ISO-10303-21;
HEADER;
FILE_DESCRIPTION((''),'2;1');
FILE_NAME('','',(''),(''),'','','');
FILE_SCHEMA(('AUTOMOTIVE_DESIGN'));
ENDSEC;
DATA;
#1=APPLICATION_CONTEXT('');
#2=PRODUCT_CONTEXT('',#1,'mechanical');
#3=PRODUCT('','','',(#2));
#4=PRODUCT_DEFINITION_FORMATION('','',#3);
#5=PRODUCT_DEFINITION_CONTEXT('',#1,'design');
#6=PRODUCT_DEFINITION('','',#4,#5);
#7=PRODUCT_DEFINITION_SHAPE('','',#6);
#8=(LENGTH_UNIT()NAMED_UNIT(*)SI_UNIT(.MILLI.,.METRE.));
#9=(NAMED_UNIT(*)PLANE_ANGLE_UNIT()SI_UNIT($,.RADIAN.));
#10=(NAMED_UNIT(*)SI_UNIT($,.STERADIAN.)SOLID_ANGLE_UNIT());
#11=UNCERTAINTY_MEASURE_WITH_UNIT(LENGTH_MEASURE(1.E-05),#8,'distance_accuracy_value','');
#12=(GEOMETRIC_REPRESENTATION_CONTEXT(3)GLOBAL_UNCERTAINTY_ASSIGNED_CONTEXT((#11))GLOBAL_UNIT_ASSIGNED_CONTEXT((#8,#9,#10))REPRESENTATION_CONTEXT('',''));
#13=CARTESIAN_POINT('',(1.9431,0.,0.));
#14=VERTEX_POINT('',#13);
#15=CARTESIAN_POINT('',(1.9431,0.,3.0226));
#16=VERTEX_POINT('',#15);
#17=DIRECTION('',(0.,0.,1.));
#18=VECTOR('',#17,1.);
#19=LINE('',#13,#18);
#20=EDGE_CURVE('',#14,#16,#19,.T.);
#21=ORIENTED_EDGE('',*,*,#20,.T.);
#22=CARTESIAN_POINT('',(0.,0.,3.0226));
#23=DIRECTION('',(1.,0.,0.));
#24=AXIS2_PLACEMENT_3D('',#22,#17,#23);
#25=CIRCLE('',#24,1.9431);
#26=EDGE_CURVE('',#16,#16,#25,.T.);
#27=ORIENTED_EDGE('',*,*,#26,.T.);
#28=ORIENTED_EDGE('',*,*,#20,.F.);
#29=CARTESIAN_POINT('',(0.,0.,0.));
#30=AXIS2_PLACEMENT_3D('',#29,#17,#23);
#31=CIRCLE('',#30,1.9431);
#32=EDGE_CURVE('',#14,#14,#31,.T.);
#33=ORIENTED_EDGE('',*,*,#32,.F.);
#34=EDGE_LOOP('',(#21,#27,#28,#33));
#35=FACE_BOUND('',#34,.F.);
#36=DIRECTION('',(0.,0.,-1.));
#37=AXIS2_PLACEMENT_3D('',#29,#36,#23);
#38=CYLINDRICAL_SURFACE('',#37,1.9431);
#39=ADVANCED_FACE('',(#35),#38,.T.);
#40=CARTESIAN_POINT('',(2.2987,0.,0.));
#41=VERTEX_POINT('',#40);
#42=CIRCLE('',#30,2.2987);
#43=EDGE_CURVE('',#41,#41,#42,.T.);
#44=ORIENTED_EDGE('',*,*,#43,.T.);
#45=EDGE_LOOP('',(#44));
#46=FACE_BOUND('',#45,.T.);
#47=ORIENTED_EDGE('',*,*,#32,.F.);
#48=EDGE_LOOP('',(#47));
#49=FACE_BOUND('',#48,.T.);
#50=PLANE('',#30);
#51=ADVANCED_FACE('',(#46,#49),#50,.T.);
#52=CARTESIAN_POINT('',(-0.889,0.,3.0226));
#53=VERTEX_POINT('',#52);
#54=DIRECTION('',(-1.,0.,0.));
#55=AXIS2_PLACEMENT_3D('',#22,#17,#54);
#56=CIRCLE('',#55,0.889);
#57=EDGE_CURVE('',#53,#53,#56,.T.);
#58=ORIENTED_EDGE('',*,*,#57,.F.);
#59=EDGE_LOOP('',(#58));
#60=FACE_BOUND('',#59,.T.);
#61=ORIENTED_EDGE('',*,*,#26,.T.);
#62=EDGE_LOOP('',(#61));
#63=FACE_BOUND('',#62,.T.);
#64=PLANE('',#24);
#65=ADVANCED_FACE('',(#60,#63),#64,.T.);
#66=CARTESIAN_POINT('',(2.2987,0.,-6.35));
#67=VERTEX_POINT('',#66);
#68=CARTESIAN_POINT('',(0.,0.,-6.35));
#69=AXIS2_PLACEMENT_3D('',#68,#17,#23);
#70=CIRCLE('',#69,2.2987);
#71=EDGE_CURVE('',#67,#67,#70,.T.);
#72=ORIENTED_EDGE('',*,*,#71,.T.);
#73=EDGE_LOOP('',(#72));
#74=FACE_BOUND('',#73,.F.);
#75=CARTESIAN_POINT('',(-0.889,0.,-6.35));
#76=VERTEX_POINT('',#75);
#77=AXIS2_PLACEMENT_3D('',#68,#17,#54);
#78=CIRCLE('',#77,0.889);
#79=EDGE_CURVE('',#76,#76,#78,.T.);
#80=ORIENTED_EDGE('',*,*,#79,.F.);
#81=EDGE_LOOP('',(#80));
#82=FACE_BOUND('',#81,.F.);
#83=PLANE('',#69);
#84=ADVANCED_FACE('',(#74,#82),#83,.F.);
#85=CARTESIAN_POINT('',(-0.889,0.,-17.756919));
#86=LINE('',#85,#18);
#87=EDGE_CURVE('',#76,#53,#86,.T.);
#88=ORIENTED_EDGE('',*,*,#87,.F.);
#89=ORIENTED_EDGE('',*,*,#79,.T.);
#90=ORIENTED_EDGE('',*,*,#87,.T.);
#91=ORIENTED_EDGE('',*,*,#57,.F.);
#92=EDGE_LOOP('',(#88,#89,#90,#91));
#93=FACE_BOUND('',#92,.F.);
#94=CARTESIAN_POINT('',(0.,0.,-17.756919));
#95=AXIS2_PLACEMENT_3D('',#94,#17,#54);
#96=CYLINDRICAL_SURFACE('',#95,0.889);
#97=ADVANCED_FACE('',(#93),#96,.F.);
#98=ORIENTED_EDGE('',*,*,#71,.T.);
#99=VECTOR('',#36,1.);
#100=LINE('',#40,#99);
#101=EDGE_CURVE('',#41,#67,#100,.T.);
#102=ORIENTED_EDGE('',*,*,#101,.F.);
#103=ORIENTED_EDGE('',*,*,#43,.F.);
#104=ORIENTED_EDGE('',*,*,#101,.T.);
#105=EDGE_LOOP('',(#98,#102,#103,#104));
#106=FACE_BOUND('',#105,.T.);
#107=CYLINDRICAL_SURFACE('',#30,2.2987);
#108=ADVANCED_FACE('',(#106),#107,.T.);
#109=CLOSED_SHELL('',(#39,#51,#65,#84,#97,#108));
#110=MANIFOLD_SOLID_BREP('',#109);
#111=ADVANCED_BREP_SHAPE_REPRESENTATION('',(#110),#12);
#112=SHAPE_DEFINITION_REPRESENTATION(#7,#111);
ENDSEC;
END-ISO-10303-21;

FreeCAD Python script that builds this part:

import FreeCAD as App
import Part
import Sketcher
from FreeCAD import Vector
Q = App.Units.Quantity

doc = App.newDocument("Part")
body = doc.addObject("PartDesign::Body", "Body")

# Sketch on XY plane
sketch1 = body.newObject("Sketcher::SketchObject", "Sketch")
sketch1.AttachmentSupport = (doc.getObject("XY_Plane"), [""])
sketch1.MapMode = "FlatFace"
sketch1.addGeometry(Part.Circle(Vector(0, 0, 0), Vector(0, 0, 1), 1.9), False)
sketch1.addConstraint(Sketcher.Constraint("Coincident", 0, 3, -1, 1))
sketch1.addConstraint(Sketcher.Constraint("Diameter", 0, Q("0.153 in")))
pad1 = body.newObject("PartDesign::Pad", "Pad")
pad1.Profile = sketch1
pad1.Length = Q("0.119 in")

# Sketch on XY plane
sketch2 = body.newObject("Sketcher::SketchObject", "Sketch001")
sketch2.AttachmentSupport = (doc.getObject("XY_Plane"), [""])
sketch2.MapMode = "FlatFace"
sketch2.addGeometry(Part.Circle(Vector(0, 0, 0), Vector(0, 0, 1), 2.3), False)
sketch2.addConstraint(Sketcher.Constraint("Coincident", 0, 3, -1, 1))
sketch2.addConstraint(Sketcher.Constraint("Diameter", 0, Q("0.181 in")))
pad2 = body.newObject("PartDesign::Pad", "Pad001")
pad2.Profile = sketch2
pad2.Length = Q("0.25 in")
pad2.Reversed = True

# Sketch on XY plane
sketch3 = body.newObject("Sketcher::SketchObject", "Sketch002")
sketch3.AttachmentSupport = (doc.getObject("XY_Plane"), [""])
sketch3.MapMode = "FlatFace"
sketch3.AttachmentOffset = App.Placement(Vector(0, 0, -0.25 * 25.4), App.Rotation())
sketch3.addGeometry(Part.Circle(Vector(0, 0, 0), Vector(0, 0, 1), 0.9), False)
sketch3.addConstraint(Sketcher.Constraint("Coincident", 0, 3, -1, 1))
sketch3.addConstraint(Sketcher.Constraint("Diameter", 0, Q("0.07 in")))
doc.recompute()
hole = body.newObject("PartDesign::Hole", "Hole")
hole.Profile = sketch3
hole.ThreadType = "None"
hole.Diameter = Q("0.07 in")
hole.DepthType = "ThroughAll"
hole.Reversed = True

doc.recompute()
